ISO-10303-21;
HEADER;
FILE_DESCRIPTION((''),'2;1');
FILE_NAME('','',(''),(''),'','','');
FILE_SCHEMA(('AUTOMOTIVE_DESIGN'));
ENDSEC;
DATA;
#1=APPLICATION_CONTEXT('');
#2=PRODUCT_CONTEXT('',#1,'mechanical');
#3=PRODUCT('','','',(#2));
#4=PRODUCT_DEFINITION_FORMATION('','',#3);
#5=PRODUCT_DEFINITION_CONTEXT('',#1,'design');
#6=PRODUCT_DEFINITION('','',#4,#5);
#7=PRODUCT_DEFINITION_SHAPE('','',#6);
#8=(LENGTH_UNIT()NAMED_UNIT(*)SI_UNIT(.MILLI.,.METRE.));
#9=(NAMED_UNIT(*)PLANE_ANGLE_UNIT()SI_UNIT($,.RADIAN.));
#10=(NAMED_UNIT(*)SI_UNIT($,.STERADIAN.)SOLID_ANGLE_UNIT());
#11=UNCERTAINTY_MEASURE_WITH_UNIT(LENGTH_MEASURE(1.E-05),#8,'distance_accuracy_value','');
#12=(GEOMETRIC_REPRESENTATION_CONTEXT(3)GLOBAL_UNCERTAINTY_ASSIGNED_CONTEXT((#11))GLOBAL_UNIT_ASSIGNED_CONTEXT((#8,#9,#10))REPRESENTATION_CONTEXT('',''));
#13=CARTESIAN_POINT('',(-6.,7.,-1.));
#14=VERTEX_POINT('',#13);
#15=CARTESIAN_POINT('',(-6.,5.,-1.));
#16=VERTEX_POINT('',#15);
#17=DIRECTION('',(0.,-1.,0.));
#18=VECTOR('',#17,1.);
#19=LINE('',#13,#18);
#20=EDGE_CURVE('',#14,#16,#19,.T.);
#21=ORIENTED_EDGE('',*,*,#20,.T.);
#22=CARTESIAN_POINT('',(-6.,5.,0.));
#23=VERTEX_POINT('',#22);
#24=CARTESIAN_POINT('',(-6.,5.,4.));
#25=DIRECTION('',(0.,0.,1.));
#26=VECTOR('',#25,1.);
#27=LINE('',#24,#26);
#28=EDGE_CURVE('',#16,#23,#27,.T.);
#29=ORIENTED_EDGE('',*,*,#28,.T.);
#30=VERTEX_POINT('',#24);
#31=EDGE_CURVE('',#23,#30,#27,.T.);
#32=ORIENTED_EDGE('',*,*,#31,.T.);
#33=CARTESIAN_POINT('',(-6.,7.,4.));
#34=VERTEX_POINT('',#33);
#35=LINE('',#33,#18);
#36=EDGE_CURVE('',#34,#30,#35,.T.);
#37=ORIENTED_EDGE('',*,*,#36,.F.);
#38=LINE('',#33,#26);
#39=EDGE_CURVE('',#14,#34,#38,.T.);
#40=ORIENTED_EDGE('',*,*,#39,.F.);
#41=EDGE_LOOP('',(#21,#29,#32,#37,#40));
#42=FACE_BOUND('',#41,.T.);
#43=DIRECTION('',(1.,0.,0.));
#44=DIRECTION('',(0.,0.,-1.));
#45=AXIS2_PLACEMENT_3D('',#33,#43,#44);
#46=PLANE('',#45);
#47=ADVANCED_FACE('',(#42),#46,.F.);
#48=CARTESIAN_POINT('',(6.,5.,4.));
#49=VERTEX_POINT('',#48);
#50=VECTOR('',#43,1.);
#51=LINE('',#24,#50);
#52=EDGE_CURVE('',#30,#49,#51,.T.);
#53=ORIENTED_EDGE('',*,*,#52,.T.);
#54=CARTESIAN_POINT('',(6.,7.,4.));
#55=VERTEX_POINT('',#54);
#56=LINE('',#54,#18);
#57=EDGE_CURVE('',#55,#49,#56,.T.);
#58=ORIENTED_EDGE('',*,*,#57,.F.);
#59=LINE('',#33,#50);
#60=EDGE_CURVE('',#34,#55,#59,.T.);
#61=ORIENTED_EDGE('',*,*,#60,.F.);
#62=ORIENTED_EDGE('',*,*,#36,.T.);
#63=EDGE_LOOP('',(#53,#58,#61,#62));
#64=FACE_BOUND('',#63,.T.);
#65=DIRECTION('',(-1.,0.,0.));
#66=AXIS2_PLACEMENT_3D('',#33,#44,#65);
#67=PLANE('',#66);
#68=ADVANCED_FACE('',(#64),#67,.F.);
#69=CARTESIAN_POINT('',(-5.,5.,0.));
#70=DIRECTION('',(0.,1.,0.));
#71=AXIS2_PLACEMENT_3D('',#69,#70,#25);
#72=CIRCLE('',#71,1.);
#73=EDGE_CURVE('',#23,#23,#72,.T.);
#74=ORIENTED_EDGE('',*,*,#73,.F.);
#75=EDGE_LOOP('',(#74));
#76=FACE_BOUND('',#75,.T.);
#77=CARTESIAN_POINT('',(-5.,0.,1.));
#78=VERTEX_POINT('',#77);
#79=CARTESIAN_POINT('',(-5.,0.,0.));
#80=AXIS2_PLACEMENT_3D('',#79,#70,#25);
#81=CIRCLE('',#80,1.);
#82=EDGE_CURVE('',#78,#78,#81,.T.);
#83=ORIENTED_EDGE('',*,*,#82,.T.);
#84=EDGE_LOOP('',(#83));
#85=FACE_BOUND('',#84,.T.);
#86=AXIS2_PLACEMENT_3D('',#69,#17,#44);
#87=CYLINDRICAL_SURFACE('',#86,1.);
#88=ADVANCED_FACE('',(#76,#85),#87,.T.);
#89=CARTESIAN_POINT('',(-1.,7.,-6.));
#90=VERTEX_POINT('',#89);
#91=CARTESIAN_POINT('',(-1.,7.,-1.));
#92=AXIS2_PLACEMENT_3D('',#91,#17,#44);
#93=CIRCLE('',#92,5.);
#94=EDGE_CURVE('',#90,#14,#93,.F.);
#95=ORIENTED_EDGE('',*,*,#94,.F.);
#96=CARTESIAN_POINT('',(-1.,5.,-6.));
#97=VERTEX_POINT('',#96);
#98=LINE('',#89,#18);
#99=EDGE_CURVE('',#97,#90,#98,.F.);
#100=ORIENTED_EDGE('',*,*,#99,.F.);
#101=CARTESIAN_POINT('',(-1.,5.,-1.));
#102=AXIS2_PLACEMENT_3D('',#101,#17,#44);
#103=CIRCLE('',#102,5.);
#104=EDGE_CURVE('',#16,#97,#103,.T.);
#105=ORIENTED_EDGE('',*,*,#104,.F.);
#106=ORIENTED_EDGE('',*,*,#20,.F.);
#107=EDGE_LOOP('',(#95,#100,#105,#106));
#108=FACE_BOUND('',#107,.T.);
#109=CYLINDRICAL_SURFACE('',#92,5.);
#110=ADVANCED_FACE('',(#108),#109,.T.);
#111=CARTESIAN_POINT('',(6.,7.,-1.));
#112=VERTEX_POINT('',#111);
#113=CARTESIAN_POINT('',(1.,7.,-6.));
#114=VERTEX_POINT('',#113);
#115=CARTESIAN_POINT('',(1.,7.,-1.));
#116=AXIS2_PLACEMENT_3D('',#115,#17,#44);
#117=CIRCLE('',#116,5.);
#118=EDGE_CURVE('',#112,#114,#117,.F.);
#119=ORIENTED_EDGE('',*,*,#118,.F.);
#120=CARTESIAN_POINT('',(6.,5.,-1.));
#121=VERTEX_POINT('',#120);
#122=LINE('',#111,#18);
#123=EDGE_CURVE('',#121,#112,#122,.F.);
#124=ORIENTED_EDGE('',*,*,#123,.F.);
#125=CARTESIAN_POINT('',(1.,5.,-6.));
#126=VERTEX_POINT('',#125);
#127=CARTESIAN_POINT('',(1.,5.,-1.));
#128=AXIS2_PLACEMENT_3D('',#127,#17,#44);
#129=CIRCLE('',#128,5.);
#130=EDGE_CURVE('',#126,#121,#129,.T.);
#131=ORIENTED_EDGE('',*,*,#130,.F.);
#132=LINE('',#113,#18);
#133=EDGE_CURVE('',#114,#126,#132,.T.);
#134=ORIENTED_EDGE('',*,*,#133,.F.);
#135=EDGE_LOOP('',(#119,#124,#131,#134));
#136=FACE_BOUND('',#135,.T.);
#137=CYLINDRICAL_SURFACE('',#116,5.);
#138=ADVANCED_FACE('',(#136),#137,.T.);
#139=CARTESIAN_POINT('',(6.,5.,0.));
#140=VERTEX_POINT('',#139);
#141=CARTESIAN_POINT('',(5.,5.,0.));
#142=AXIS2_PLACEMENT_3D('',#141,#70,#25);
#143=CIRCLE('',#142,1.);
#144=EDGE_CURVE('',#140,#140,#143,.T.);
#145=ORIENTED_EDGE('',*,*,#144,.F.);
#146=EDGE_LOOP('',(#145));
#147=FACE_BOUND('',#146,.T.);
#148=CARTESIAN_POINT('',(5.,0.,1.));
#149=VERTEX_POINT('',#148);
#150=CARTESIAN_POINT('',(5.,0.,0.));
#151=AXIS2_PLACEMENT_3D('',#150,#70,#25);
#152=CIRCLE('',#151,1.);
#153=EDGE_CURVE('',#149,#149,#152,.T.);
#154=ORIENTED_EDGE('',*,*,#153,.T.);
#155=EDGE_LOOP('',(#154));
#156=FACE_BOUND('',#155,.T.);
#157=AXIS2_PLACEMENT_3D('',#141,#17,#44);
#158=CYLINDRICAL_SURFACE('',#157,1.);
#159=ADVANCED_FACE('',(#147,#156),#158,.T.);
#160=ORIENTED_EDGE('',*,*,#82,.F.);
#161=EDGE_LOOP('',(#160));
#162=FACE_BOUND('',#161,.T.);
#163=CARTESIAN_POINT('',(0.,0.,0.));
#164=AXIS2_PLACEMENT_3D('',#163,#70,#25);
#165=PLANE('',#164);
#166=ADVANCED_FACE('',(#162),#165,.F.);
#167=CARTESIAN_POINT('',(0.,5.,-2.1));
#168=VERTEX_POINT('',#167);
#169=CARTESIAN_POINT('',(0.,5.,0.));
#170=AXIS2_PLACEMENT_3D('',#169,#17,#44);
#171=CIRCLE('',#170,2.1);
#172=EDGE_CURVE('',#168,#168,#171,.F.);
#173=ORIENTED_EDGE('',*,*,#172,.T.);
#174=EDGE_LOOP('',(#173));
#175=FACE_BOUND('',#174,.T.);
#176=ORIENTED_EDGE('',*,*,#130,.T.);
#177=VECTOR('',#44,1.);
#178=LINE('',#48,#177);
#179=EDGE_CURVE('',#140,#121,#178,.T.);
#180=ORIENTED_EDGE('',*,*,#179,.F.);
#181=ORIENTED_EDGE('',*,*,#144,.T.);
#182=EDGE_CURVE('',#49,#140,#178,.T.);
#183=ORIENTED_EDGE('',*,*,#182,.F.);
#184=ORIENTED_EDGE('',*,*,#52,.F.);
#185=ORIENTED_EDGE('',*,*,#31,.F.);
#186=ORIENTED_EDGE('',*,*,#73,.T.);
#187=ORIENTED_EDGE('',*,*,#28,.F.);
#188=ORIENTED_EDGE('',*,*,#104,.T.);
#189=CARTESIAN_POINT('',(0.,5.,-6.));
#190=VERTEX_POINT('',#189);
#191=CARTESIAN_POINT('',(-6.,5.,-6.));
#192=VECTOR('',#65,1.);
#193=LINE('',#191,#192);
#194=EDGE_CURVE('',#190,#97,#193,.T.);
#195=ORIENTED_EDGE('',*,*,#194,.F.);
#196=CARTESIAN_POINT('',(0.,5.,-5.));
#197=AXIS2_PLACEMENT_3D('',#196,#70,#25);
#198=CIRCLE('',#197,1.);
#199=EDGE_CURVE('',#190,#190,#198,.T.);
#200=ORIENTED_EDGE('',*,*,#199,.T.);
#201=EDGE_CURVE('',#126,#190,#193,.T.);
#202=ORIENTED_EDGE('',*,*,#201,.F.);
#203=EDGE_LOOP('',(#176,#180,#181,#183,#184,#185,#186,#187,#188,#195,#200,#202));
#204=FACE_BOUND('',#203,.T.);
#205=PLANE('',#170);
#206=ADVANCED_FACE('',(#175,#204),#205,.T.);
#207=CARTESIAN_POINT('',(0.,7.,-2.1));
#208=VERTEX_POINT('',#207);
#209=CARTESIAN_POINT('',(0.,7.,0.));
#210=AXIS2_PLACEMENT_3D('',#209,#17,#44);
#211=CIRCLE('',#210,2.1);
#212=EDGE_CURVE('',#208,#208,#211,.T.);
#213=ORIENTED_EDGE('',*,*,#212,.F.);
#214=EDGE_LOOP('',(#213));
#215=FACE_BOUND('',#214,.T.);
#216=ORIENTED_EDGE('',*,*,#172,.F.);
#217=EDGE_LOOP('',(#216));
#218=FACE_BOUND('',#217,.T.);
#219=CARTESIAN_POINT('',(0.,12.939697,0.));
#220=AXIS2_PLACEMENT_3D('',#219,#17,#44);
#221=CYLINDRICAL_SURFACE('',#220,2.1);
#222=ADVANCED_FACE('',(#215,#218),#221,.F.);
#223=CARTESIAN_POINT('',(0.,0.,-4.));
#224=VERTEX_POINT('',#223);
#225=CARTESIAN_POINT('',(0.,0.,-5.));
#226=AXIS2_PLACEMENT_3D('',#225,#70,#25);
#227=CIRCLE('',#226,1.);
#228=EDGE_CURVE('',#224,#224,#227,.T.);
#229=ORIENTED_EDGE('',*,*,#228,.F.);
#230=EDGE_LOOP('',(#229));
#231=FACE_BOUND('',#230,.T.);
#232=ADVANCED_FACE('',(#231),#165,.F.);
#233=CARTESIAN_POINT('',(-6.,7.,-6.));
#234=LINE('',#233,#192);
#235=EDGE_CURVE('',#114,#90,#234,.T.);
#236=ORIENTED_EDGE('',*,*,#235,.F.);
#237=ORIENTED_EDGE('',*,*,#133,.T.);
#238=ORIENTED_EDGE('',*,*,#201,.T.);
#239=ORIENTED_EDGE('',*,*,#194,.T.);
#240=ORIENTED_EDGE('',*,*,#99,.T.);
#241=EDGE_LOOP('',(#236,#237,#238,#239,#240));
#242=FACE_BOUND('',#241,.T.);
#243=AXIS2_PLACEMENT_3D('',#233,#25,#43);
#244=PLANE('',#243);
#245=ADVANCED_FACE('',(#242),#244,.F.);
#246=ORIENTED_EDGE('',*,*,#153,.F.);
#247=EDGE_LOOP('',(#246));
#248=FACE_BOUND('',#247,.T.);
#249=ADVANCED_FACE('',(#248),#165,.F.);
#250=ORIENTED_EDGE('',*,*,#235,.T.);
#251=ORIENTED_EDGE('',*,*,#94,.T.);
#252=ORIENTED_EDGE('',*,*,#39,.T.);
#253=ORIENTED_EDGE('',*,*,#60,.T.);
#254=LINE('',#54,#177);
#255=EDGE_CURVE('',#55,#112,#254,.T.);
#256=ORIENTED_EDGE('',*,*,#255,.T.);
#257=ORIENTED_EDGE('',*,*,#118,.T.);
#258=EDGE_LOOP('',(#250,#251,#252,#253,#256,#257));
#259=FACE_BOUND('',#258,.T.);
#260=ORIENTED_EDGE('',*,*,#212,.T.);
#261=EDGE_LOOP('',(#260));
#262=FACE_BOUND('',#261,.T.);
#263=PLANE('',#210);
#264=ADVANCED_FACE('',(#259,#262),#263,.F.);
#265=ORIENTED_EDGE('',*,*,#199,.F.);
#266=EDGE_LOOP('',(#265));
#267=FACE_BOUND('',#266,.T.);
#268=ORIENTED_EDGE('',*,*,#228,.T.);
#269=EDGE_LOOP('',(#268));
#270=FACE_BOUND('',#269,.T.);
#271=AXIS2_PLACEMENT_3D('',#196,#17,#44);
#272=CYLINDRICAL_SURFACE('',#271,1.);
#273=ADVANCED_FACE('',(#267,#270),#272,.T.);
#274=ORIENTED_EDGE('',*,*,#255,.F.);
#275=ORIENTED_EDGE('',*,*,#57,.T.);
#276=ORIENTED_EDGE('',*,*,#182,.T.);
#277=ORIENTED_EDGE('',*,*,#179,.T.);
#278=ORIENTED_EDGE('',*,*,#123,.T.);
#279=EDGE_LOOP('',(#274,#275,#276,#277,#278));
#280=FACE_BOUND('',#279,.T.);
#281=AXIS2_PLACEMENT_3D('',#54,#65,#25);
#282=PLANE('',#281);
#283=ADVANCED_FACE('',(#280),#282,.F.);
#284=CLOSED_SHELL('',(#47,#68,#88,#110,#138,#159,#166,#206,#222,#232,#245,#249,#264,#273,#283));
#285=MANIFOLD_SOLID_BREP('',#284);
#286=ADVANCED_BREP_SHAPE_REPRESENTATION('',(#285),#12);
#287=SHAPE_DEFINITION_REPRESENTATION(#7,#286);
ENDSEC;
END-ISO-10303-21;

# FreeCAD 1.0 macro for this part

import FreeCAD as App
import Part
import Sketcher

V = App.Vector
Q = App.Units.Quantity


def edges_at(feature, points):
    """Names of the edges that pass closest to the given points."""
    edges = feature.Shape.Edges
    near = lambda p: min(range(len(edges)), key=lambda i: edges[i].distToShape(Part.Vertex(*p))[0])
    return sorted({f"Edge{near(p) + 1}" for p in points})


def add_polygon(sketch, points):
    """Adds a closed chain of lines whose ends are joined by coincident constraints."""
    first, n = sketch.GeometryCount, len(points)
    for a, b in zip(points, points[1:] + points[:1]):
        sketch.addGeometry(Part.LineSegment(App.Vector(*a, 0), App.Vector(*b, 0)), False)
    for i in range(n):
        sketch.addConstraint(Sketcher.Constraint("Coincident", first + i, 2, first + (i + 1) % n, 1))

doc = App.newDocument("Part")
body = doc.addObject("PartDesign::Body", "Body")

# Sketch on XZ plane
sketch1 = doc.addObject("Sketcher::SketchObject", "Sketch")
body.addObject(sketch1)
sketch1.AttachmentSupport = (doc.XZ_Plane, [""])
sketch1.MapMode = "FlatFace"
sketch1.addGeometry(Part.Circle(V(-5, 0, 0), V(0, 0, 1), 1), False)
sketch1.addConstraint(Sketcher.Constraint("PointOnObject", 0, 3, -1))
sketch1.addConstraint(Sketcher.Constraint("Diameter", 0, Q("2 mm")))
sketch1.addConstraint(Sketcher.Constraint("DistanceX", 0, 3, -1, 1, Q("5 mm")))
pad1 = doc.addObject("PartDesign::Pad", "Pad")
body.addObject(pad1)
pad1.Profile = sketch1
pad1.Length = 5
pad1.Reversed = True
body2 = doc.addObject("PartDesign::Body", "Body001")

# Sketch on XZ plane
sketch2 = doc.addObject("Sketcher::SketchObject", "Sketch001")
body2.addObject(sketch2)
sketch2.AttachmentSupport = (doc.getObject("XZ_Plane001"), [""])
sketch2.MapMode = "FlatFace"
sketch2.addGeometry(Part.Circle(V(0, -5, 0), V(0, 0, 1), 1), False)
sketch2.addConstraint(Sketcher.Constraint("PointOnObject", 0, 3, -2))
sketch2.addConstraint(Sketcher.Constraint("Diameter", 0, Q("2 mm")))
sketch2.addConstraint(Sketcher.Constraint("DistanceY", 0, 3, -1, 1, Q("5 mm")))
pad2 = doc.addObject("PartDesign::Pad", "Pad001")
body2.addObject(pad2)
pad2.Profile = sketch2
pad2.Length = 5
pad2.Reversed = True
body3 = doc.addObject("PartDesign::Body", "Body002")

# Sketch on XZ plane
sketch3 = doc.addObject("Sketcher::SketchObject", "Sketch002")
body3.addObject(sketch3)
sketch3.AttachmentSupport = (doc.getObject("XZ_Plane002"), [""])
sketch3.MapMode = "FlatFace"
sketch3.addGeometry(Part.Circle(V(5, 0, 0), V(0, 0, 1), 1), False)
sketch3.addConstraint(Sketcher.Constraint("PointOnObject", 0, 3, -1))
sketch3.addConstraint(Sketcher.Constraint("Diameter", 0, Q("2 mm")))
sketch3.addConstraint(Sketcher.Constraint("DistanceX", -1, 1, 0, 3, Q("5 mm")))
pad3 = doc.addObject("PartDesign::Pad", "Pad002")
body3.addObject(pad3)
pad3.Profile = sketch3
pad3.Length = 5
pad3.Reversed = True
body.AllowCompound = True
doc.recompute()

boolean = doc.addObject("PartDesign::Boolean", "Boolean")
body.addObject(boolean)
boolean.Type = "Fuse"
boolean.addObjects([body2])
doc.recompute()

boolean2 = doc.addObject("PartDesign::Boolean", "Boolean001")
body.addObject(boolean2)
boolean2.Type = "Fuse"
boolean2.addObjects([body3])

# Sketch on XZ plane
sketch4 = doc.addObject("Sketcher::SketchObject", "Sketch003")
body.addObject(sketch4)
sketch4.AttachmentSupport = (doc.XZ_Plane, [""])
sketch4.MapMode = "FlatFace"
sketch4.AttachmentOffset = App.Placement(V(0, 0, -5), App.Rotation())
add_polygon(sketch4, [(-6, -6), (-6, 4), (6, 4), (6, -6)])  # lines 0-3
sketch4.addConstraint(Sketcher.Constraint("Vertical", 0))
sketch4.addConstraint(Sketcher.Constraint("Horizontal", 1))
sketch4.addConstraint(Sketcher.Constraint("Vertical", 2))
sketch4.addConstraint(Sketcher.Constraint("Horizontal", 3))
sketch4.addConstraint(Sketcher.Constraint("DistanceX", 1, 1, 1, 2, Q("12 mm")))
sketch4.addConstraint(Sketcher.Constraint("DistanceY", 0, 1, 0, 2, Q("10 mm")))
sketch4.addConstraint(Sketcher.Constraint("DistanceX", 0, 2, -1, 1, Q("6 mm")))
sketch4.addConstraint(Sketcher.Constraint("DistanceY", -1, 1, 0, 2, Q("4 mm")))
pad4 = doc.addObject("PartDesign::Pad", "Pad003")
body.addObject(pad4)
pad4.Profile = sketch4
pad4.Length = 2
pad4.Reversed = True

# Sketch on XZ plane
sketch5 = doc.addObject("Sketcher::SketchObject", "Sketch004")
body.addObject(sketch5)
sketch5.AttachmentSupport = (doc.XZ_Plane, [""])
sketch5.MapMode = "FlatFace"
sketch5.addGeometry(Part.Circle(V(0, 0, 0), V(0, 0, 1), 2.1), False)
sketch5.addConstraint(Sketcher.Constraint("Coincident", 0, 3, -1, 1))
sketch5.addConstraint(Sketcher.Constraint("Diameter", 0, Q("4.2 mm")))
pocket1 = doc.addObject("PartDesign::Pocket", "Pocket")
body.addObject(pocket1)
pocket1.Profile = sketch5
pocket1.Length = 7
doc.recompute()

fillet = doc.addObject("PartDesign::Fillet", "Fillet")
body.addObject(fillet)
fillet.Base = (pocket1, edges_at(pocket1, [(-6, 6, -6), (6, 6, -6)]))
fillet.Radius = 5

doc.recompute()
